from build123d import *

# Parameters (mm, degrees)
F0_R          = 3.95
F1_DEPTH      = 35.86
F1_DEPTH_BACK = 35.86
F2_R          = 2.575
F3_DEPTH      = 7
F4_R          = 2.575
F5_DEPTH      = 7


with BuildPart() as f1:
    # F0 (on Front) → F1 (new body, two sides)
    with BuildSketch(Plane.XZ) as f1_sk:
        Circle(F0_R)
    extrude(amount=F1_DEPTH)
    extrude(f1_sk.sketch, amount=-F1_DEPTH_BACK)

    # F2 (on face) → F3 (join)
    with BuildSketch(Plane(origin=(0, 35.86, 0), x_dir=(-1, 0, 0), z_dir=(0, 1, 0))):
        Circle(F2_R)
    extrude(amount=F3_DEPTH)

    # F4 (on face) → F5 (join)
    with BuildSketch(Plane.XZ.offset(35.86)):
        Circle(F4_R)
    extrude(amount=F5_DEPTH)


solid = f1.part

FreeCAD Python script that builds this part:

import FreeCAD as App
import Part
import Sketcher
Q = App.Units.Quantity

doc = App.newDocument("Part")
params = doc.addObject("Spreadsheet::Sheet", "Params")
for row, (alias, value) in enumerate([
    ("sketch1_diameter", "7.9 mm"),
    ("pad1_length", "35.86 mm"),
    ("pad1_length2", "35.86 mm"),
    ("sketch2_diameter", "5.15 mm"),
    ("pad2_length", "7 mm"),
    ("sketch3_diameter", "5.15 mm"),
    ("pad3_length", "7 mm"),
], start=1):
    params.set(f"A{row}", alias)
    params.set(f"B{row}", "=" + value)
    params.setAlias(f"B{row}", alias)

body = doc.addObject("PartDesign::Body", "Body")

sketch1 = body.newObject("Sketcher::SketchObject", "Sketch")
sketch1.AttachmentSupport = (doc.getObject("XZ_Plane"), [""])
sketch1.MapMode = "FlatFace"
sketch1.addGeometry(Part.Circle(App.Vector(0, 0, 0), App.Vector(0, 0, 1), 3.95), False)
sketch1.addConstraint(Sketcher.Constraint("Coincident", 0, 3, -1, 1))
sketch1.addConstraint(Sketcher.Constraint("Diameter", 0, Q("7.9 mm")))
sketch1.setExpression("Constraints[1]", "Params.sketch1_diameter")
pad1 = body.newObject("PartDesign::Pad", "Pad")
pad1.Profile = sketch1
pad1.Type = "TwoLengths"
pad1.setExpression("Length", "Params.pad1_length")
pad1.setExpression("Length2", "Params.pad1_length2")

sketch2 = body.newObject("Sketcher::SketchObject", "Sketch001")
sketch2.AttachmentSupport = (doc.getObject("XZ_Plane"), [""])
sketch2.MapMode = "FlatFace"
sketch2.AttachmentOffset = App.Placement(App.Vector(0, 0, -35.86), App.Rotation())
sketch2.addGeometry(Part.Circle(App.Vector(0, 0, 0), App.Vector(0, 0, 1), 2.575), False)
sketch2.addConstraint(Sketcher.Constraint("Coincident", 0, 3, -1, 1))
sketch2.addConstraint(Sketcher.Constraint("Diameter", 0, Q("5.15 mm")))
sketch2.setExpression("Constraints[1]", "Params.sketch2_diameter")
pad2 = body.newObject("PartDesign::Pad", "Pad001")
pad2.Profile = sketch2
pad2.setExpression("Length", "Params.pad2_length")
pad2.Reversed = True

sketch3 = body.newObject("Sketcher::SketchObject", "Sketch002")
sketch3.AttachmentSupport = (doc.getObject("XZ_Plane"), [""])
sketch3.MapMode = "FlatFace"
sketch3.AttachmentOffset = App.Placement(App.Vector(0, 0, 35.86), App.Rotation())
sketch3.addGeometry(Part.Circle(App.Vector(0, 0, 0), App.Vector(0, 0, 1), 2.575), False)
sketch3.addConstraint(Sketcher.Constraint("Coincident", 0, 3, -1, 1))
sketch3.addConstraint(Sketcher.Constraint("Diameter", 0, Q("5.15 mm")))
sketch3.setExpression("Constraints[1]", "Params.sketch3_diameter")
pad3 = body.newObject("PartDesign::Pad", "Pad002")
pad3.Profile = sketch3
pad3.setExpression("Length", "Params.pad3_length")

doc.recompute()
